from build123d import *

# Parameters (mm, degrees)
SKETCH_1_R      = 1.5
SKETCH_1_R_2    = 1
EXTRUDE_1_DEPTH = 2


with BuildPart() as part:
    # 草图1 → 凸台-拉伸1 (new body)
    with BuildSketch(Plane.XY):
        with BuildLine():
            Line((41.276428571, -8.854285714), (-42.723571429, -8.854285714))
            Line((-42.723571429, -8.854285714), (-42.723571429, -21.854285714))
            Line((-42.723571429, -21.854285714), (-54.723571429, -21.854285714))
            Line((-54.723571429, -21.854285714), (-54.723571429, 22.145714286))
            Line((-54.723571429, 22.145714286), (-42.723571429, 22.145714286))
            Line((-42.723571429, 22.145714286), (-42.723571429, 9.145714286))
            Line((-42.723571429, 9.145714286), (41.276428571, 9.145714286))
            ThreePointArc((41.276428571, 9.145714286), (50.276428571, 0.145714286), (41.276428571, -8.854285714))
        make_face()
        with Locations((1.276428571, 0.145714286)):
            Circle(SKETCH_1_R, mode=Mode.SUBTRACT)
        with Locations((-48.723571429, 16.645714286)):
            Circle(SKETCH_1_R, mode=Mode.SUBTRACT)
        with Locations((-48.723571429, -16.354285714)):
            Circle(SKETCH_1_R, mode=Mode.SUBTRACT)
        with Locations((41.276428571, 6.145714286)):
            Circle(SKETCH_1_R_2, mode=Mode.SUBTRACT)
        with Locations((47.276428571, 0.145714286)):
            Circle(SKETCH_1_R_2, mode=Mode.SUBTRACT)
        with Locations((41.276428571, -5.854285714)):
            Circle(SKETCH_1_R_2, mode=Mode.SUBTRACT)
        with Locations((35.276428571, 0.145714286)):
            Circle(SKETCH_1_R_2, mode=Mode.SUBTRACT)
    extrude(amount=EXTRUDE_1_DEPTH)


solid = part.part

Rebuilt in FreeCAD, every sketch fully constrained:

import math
import FreeCAD as App
import Part
import Sketcher

V = App.Vector

doc = App.newDocument("Part")
params = doc.addObject("Spreadsheet::Sheet", "Params")
for row, (alias, value) in enumerate([
    ("sketch1_diameter", "2 mm"),
    ("sketch1_diameter2", "3 mm"),
    ("sketch1_radius", "9 mm"),
    ("sketch1_width", "84 mm"),
    ("sketch1_width2", "12 mm"),
    ("pad1_length", "2 mm"),
], start=1):
    params.set(f"A{row}", alias)
    params.set(f"B{row}", "=" + value)
    params.setAlias(f"B{row}", alias)

body = doc.addObject("PartDesign::Body", "Body")

# Sketch on XY plane
sketch1 = doc.addObject("Sketcher::SketchObject", "Sketch")
body.addObject(sketch1)
sketch1.AttachmentSupport = (doc.XY_Plane, [""])
sketch1.MapMode = "FlatFace"
sketch1.addGeometry([
    Part.LineSegment(V(-42.7, -8.9, 0), V(41.3, -8.9, 0)),  # 0
    Part.ArcOfCircle(Part.Circle(V(41.3, 0.1, 0), V(0, 0, 1), 9), math.radians(-90), math.radians(90)),  # 1
    Part.LineSegment(V(41.3, 9.1, 0), V(-42.7, 9.1, 0)),  # 2
    Part.LineSegment(V(-42.7, 9.1, 0), V(-42.7, 22.1, 0)),  # 3
    Part.LineSegment(V(-42.7, 22.1, 0), V(-54.7, 22.1, 0)),  # 4
    Part.LineSegment(V(-54.7, 22.1, 0), V(-54.7, -21.9, 0)),  # 5
    Part.LineSegment(V(-54.7, -21.9, 0), V(-42.7, -21.9, 0)),  # 6
    Part.LineSegment(V(-42.7, -21.9, 0), V(-42.7, -8.9, 0)),  # 7
    Part.Circle(V(41.3, -5.9, 0), V(0, 0, 1), 1),  # 8
    Part.Circle(V(-48.7, -16.4, 0), V(0, 0, 1), 1.5),  # 9
    Part.Circle(V(47.3, 0.1, 0), V(0, 0, 1), 1),  # 10
    Part.Circle(V(35.3, 0.1, 0), V(0, 0, 1), 1),  # 11
    Part.Circle(V(41.3, 6.1, 0), V(0, 0, 1), 1),  # 12
    Part.Circle(V(1.3, 0.1, 0), V(0, 0, 1), 1.5),  # 13
    Part.Circle(V(-48.7, 16.6, 0), V(0, 0, 1), 1.5),  # 14
], False)
sketch1.addConstraint([
    Sketcher.Constraint("Tangent", 0, 2, 1, 1),
    Sketcher.Constraint("Tangent", 1, 2, 2, 1),
    Sketcher.Constraint("Coincident", 2, 2, 3, 1),
    Sketcher.Constraint("Coincident", 3, 2, 4, 1),
    Sketcher.Constraint("Coincident", 4, 2, 5, 1),
    Sketcher.Constraint("Coincident", 5, 2, 6, 1),
    Sketcher.Constraint("Coincident", 6, 2, 7, 1),
    Sketcher.Constraint("Coincident", 7, 2, 0, 1),
    Sketcher.Constraint("Horizontal", 0),
    Sketcher.Constraint("Horizontal", 2),
    Sketcher.Constraint("Vertical", 3),
    Sketcher.Constraint("Horizontal", 4),
    Sketcher.Constraint("Vertical", 5),
    Sketcher.Constraint("Horizontal", 6),
    Sketcher.Constraint("Vertical", 7),
    Sketcher.Constraint("Equal", 8, 10),
    Sketcher.Constraint("Equal", 10, 11),
    Sketcher.Constraint("Equal", 11, 12),
    Sketcher.Constraint("Equal", 9, 13),
    Sketcher.Constraint("Equal", 13, 14),
    Sketcher.Constraint("Horizontal", 1, 3, 10, 3),
    Sketcher.Constraint("Horizontal", 10, 3, 11, 3),
    Sketcher.Constraint("Horizontal", 11, 3, 13, 3),
    Sketcher.Constraint("Vertical", 1, 3, 8, 3),
    Sketcher.Constraint("Vertical", 8, 3, 12, 3),
    Sketcher.Constraint("Vertical", 9, 3, 14, 3),
    Sketcher.Constraint("Vertical", 3, 2, 6, 2),
    Sketcher.Constraint("Equal", 3, 7),
    Sketcher.Constraint("Diameter", 8, 2.0),
    Sketcher.Constraint("Diameter", 9, 3.0),
    Sketcher.Constraint("Radius", 1, 9.0),
    Sketcher.Constraint("DistanceX", 0, 1, 0, 2, 84.0),
    Sketcher.Constraint("DistanceX", 4, 2, 4, 1, 12.0),
    Sketcher.Constraint("DistanceY", 3, 1, 3, 2, 13.0),
    Sketcher.Constraint("DistanceY", 8, 3, 1, 3, 6.0),
    Sketcher.Constraint("DistanceX", 9, 3, 8, 3, 90.0),
    Sketcher.Constraint("DistanceX", 1, 3, 10, 3, 6.0),
    Sketcher.Constraint("DistanceX", 11, 3, 1, 3, 6.0),
    Sketcher.Constraint("DistanceY", 1, 3, 12, 3, 6.0),
    Sketcher.Constraint("DistanceX", 13, 3, 11, 3, 34.0),
    Sketcher.Constraint("DistanceY", 9, 3, 14, 3, 33.0),
    Sketcher.Constraint("DistanceY", 9, 3, 8, 3, 10.5),
    Sketcher.Constraint("DistanceX", -1, 1, 1, 3, 41.276429),
    Sketcher.Constraint("DistanceY", -1, 1, 1, 3, 0.145714),
])
sketch1.setExpression("Constraints[28]", "Params.sketch1_diameter")
sketch1.setExpression("Constraints[29]", "Params.sketch1_diameter2")
sketch1.setExpression("Constraints[30]", "Params.sketch1_radius")
sketch1.setExpression("Constraints[31]", "Params.sketch1_width")
sketch1.setExpression("Constraints[32]", "Params.sketch1_width2")
pad1 = doc.addObject("PartDesign::Pad", "Pad")
body.addObject(pad1)
pad1.Profile = sketch1
pad1.setExpression("Length", "Params.pad1_length")

doc.recompute()
